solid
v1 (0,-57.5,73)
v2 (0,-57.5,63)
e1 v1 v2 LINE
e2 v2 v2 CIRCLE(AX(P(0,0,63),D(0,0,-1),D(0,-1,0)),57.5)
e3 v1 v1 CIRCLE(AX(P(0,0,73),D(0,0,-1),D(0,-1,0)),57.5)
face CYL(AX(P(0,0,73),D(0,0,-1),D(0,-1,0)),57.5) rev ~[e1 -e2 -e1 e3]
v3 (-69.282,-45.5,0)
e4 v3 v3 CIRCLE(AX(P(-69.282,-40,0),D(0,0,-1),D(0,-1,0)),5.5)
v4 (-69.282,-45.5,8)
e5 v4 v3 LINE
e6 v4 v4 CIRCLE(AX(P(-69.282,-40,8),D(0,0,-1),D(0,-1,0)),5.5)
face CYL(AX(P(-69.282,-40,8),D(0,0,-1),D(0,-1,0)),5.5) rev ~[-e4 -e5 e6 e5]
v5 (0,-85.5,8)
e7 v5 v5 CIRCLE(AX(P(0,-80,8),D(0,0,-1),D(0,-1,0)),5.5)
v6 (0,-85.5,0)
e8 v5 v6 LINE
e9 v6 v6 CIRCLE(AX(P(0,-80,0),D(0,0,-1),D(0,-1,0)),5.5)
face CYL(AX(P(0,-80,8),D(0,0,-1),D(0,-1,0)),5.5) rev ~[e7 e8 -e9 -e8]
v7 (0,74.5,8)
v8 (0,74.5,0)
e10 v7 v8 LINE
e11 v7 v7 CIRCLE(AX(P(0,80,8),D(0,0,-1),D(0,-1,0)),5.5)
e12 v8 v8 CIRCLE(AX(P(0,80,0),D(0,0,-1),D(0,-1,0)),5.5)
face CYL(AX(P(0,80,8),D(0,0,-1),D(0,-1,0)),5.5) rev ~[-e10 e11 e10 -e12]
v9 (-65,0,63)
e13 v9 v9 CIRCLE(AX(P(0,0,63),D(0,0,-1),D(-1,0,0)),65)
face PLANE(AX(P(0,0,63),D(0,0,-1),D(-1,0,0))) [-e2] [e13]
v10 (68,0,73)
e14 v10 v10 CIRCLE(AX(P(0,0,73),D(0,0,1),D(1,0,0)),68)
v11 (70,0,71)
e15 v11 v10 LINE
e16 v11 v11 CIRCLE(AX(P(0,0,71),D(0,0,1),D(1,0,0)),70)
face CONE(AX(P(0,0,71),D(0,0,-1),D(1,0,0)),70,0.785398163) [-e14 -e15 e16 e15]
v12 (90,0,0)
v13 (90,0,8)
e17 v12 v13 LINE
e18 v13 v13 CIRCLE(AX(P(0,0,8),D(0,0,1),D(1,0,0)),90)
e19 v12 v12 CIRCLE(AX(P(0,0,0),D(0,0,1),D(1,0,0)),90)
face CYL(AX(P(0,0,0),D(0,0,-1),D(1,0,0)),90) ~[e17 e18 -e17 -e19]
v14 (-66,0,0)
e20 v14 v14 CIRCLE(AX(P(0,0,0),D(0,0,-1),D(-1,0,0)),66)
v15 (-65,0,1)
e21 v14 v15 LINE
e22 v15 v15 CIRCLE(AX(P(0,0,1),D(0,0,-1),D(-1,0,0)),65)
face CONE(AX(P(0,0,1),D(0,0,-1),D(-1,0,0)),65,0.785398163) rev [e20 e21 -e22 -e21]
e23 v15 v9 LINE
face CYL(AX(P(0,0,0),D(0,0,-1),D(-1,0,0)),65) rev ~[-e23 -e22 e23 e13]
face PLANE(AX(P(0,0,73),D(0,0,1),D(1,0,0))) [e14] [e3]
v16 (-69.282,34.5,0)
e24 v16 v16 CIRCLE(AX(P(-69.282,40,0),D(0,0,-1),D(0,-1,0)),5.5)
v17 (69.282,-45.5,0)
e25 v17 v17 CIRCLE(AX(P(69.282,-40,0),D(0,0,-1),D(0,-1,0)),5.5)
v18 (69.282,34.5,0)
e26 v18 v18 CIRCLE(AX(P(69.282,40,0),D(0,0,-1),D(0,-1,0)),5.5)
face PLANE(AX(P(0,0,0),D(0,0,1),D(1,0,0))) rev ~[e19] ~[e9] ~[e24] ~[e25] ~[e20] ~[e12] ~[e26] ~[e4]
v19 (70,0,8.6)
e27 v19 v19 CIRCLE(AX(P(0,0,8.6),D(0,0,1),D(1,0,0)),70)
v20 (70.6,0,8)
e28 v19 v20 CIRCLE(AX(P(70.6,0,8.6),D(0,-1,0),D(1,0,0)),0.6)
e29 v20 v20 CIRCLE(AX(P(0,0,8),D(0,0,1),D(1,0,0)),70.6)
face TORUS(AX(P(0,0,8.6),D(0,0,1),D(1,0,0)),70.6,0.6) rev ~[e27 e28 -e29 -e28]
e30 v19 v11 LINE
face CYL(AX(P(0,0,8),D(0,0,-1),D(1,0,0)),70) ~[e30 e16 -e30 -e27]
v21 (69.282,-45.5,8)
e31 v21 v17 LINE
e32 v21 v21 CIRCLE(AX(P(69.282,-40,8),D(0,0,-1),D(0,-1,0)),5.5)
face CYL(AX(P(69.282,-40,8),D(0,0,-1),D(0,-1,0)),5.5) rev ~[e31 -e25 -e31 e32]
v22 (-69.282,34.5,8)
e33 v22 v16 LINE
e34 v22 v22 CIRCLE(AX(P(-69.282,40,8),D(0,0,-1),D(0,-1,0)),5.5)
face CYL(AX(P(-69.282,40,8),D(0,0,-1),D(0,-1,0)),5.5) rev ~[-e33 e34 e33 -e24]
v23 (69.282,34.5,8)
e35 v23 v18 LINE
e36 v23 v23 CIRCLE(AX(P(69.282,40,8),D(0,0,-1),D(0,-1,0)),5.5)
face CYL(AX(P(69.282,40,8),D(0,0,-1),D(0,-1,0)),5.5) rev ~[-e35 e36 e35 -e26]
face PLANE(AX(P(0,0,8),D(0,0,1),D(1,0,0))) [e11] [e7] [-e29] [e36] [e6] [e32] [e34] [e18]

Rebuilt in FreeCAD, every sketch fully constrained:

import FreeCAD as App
import Part
import Sketcher

V = App.Vector
Q = App.Units.Quantity


def edges_at(feature, points):
    """Names of the edges that pass closest to the given points."""
    edges = feature.Shape.Edges
    near = lambda p: min(range(len(edges)), key=lambda i: edges[i].distToShape(Part.Vertex(*p))[0])
    return sorted({f"Edge{near(p) + 1}" for p in points})

doc = App.newDocument("Part")
params = doc.addObject("Spreadsheet::Sheet", "Params")
for row, (alias, value) in enumerate([
    ("sketch1_diameter", "180 mm"),
    ("pad1_length", "8 mm"),
    ("sketch2_diameter", "140 mm"),
    ("pad2_length", "65 mm"),
    ("sketch3_diameter", "130 mm"),
    ("pocket1_length", "63 mm"),
    ("chamfer_size", "1 mm"),
    ("chamfer2_size", "2 mm"),
    ("sketch4_diameter", "115 mm"),
    ("hole_diameter", "115 mm"),
    ("sketch5_diameter", "11 mm"),
    ("hole2_diameter", "11 mm"),
    ("fillet_radius", "0.6 mm"),
], start=1):
    params.set(f"A{row}", alias)
    params.set(f"B{row}", "=" + value)
    params.setAlias(f"B{row}", alias)

body = doc.addObject("PartDesign::Body", "Body")

# Sketch on XY plane
sketch1 = body.newObject("Sketcher::SketchObject", "Sketch")
sketch1.AttachmentSupport = (doc.getObject("XY_Plane"), [""])
sketch1.MapMode = "FlatFace"
sketch1.addGeometry(Part.Circle(V(0, 0, 0), V(0, 0, 1), 90), False)
sketch1.addConstraint([
    Sketcher.Constraint("Coincident", 0, 3, -1, 1),
    Sketcher.Constraint("Diameter", 0, Q("180 mm")),
])
sketch1.setExpression("Constraints[1]", "Params.sketch1_diameter")
pad1 = body.newObject("PartDesign::Pad", "Pad")
pad1.Profile = sketch1
pad1.setExpression("Length", "Params.pad1_length")

# Sketch on XY plane
sketch2 = body.newObject("Sketcher::SketchObject", "Sketch001")
sketch2.AttachmentSupport = (doc.getObject("XY_Plane"), [""])
sketch2.MapMode = "FlatFace"
sketch2.AttachmentOffset = App.Placement(V(0, 0, 8), App.Rotation())
sketch2.addGeometry(Part.Circle(V(0, 0, 0), V(0, 0, 1), 70), False)
sketch2.addConstraint([
    Sketcher.Constraint("Coincident", 0, 3, -1, 1),
    Sketcher.Constraint("Diameter", 0, Q("140 mm")),
])
sketch2.setExpression("Constraints[1]", "Params.sketch2_diameter")
pad2 = body.newObject("PartDesign::Pad", "Pad001")
pad2.Profile = sketch2
pad2.setExpression("Length", "Params.pad2_length")

# Sketch on XY plane
sketch3 = body.newObject("Sketcher::SketchObject", "Sketch002")
sketch3.AttachmentSupport = (doc.getObject("XY_Plane"), [""])
sketch3.MapMode = "FlatFace"
sketch3.addGeometry(Part.Circle(V(0, 0, 0), V(0, 0, 1), 65), False)
sketch3.addConstraint([
    Sketcher.Constraint("Coincident", 0, 3, -1, 1),
    Sketcher.Constraint("Diameter", 0, Q("130 mm")),
])
sketch3.setExpression("Constraints[1]", "Params.sketch3_diameter")
pocket1 = body.newObject("PartDesign::Pocket", "Pocket")
pocket1.Profile = sketch3
pocket1.setExpression("Length", "Params.pocket1_length")
pocket1.Reversed = True
doc.recompute()

chamfer = body.newObject("PartDesign::Chamfer", "Chamfer")
chamfer.Base = (pocket1, edges_at(pocket1, [(65, 0, 0)]))
chamfer.setExpression("Size", "Params.chamfer_size")
doc.recompute()

chamfer2 = body.newObject("PartDesign::Chamfer", "Chamfer001")
chamfer2.Base = (chamfer, edges_at(chamfer, [(-70, 0, 73)]))
chamfer2.setExpression("Size", "Params.chamfer2_size")

# Sketch on XY plane
sketch4 = body.newObject("Sketcher::SketchObject", "Sketch003")
sketch4.AttachmentSupport = (doc.getObject("XY_Plane"), [""])
sketch4.MapMode = "FlatFace"
sketch4.AttachmentOffset = App.Placement(V(0, 0, 73), App.Rotation())
sketch4.addGeometry(Part.Circle(V(0, 0, 0), V(0, 0, 1), 58), False)
sketch4.addConstraint([
    Sketcher.Constraint("Coincident", 0, 3, -1, 1),
    Sketcher.Constraint("Diameter", 0, Q("115 mm")),
])
sketch4.setExpression("Constraints[1]", "Params.sketch4_diameter")
doc.recompute()
hole = body.newObject("PartDesign::Hole", "Hole")
hole.Profile = sketch4
hole.ThreadType = "None"
hole.setExpression("Diameter", "Params.hole_diameter")
hole.DepthType = "ThroughAll"

# Sketch on XY plane
sketch5 = body.newObject("Sketcher::SketchObject", "Sketch004")
sketch5.AttachmentSupport = (doc.getObject("XY_Plane"), [""])
sketch5.MapMode = "FlatFace"
sketch5.AttachmentOffset = App.Placement(V(0, 0, 8), App.Rotation())
sketch5.addGeometry([
    Part.Circle(V(0, 80, 0), V(0, 0, 1), 6),  # 0
    Part.Circle(V(69, 40, 0), V(0, 0, 1), 6),  # 1
    Part.Circle(V(69, -40, 0), V(0, 0, 1), 6),  # 2
    Part.Circle(V(0, -80, 0), V(0, 0, 1), 6),  # 3
    Part.Circle(V(-69, -40, 0), V(0, 0, 1), 6),  # 4
    Part.Circle(V(-69, 40, 0), V(0, 0, 1), 6),  # 5
], False)
sketch5.addConstraint([
    Sketcher.Constraint("Equal", 0, 1),
    Sketcher.Constraint("Equal", 1, 2),
    Sketcher.Constraint("Equal", 2, 3),
    Sketcher.Constraint("Equal", 3, 4),
    Sketcher.Constraint("Equal", 4, 5),
    Sketcher.Constraint("Symmetric", 0, 3, 3, 3, -1, 1),
    Sketcher.Constraint("Symmetric", 1, 3, 4, 3, -1, 1),
    Sketcher.Constraint("Symmetric", 2, 3, 5, 3, -1, 1),
    Sketcher.Constraint("Symmetric", 2, 3, 4, 3, -2),
    Sketcher.Constraint("PointOnObject", 0, 3, -2),
    Sketcher.Constraint("Diameter", 0, Q("11 mm")),
    Sketcher.Constraint("DistanceY", -1, 1, 0, 3, Q("80 mm")),
    Sketcher.Constraint("DistanceY", -1, 1, 1, 3, Q("40 mm")),
    Sketcher.Constraint("DistanceX", -1, 1, 1, 3, Q("69.282 mm")),
])
sketch5.setExpression("Constraints[10]", "Params.sketch5_diameter")
doc.recompute()
hole2 = body.newObject("PartDesign::Hole", "Hole001")
hole2.Profile = sketch5
hole2.ThreadType = "None"
hole2.setExpression("Diameter", "Params.hole2_diameter")
hole2.DepthType = "ThroughAll"
doc.recompute()

fillet = body.newObject("PartDesign::Fillet", "Fillet")
fillet.Base = (hole2, edges_at(hole2, [(-70, 0, 8)]))
fillet.setExpression("Radius", "Params.fillet_radius")

doc.recompute()
